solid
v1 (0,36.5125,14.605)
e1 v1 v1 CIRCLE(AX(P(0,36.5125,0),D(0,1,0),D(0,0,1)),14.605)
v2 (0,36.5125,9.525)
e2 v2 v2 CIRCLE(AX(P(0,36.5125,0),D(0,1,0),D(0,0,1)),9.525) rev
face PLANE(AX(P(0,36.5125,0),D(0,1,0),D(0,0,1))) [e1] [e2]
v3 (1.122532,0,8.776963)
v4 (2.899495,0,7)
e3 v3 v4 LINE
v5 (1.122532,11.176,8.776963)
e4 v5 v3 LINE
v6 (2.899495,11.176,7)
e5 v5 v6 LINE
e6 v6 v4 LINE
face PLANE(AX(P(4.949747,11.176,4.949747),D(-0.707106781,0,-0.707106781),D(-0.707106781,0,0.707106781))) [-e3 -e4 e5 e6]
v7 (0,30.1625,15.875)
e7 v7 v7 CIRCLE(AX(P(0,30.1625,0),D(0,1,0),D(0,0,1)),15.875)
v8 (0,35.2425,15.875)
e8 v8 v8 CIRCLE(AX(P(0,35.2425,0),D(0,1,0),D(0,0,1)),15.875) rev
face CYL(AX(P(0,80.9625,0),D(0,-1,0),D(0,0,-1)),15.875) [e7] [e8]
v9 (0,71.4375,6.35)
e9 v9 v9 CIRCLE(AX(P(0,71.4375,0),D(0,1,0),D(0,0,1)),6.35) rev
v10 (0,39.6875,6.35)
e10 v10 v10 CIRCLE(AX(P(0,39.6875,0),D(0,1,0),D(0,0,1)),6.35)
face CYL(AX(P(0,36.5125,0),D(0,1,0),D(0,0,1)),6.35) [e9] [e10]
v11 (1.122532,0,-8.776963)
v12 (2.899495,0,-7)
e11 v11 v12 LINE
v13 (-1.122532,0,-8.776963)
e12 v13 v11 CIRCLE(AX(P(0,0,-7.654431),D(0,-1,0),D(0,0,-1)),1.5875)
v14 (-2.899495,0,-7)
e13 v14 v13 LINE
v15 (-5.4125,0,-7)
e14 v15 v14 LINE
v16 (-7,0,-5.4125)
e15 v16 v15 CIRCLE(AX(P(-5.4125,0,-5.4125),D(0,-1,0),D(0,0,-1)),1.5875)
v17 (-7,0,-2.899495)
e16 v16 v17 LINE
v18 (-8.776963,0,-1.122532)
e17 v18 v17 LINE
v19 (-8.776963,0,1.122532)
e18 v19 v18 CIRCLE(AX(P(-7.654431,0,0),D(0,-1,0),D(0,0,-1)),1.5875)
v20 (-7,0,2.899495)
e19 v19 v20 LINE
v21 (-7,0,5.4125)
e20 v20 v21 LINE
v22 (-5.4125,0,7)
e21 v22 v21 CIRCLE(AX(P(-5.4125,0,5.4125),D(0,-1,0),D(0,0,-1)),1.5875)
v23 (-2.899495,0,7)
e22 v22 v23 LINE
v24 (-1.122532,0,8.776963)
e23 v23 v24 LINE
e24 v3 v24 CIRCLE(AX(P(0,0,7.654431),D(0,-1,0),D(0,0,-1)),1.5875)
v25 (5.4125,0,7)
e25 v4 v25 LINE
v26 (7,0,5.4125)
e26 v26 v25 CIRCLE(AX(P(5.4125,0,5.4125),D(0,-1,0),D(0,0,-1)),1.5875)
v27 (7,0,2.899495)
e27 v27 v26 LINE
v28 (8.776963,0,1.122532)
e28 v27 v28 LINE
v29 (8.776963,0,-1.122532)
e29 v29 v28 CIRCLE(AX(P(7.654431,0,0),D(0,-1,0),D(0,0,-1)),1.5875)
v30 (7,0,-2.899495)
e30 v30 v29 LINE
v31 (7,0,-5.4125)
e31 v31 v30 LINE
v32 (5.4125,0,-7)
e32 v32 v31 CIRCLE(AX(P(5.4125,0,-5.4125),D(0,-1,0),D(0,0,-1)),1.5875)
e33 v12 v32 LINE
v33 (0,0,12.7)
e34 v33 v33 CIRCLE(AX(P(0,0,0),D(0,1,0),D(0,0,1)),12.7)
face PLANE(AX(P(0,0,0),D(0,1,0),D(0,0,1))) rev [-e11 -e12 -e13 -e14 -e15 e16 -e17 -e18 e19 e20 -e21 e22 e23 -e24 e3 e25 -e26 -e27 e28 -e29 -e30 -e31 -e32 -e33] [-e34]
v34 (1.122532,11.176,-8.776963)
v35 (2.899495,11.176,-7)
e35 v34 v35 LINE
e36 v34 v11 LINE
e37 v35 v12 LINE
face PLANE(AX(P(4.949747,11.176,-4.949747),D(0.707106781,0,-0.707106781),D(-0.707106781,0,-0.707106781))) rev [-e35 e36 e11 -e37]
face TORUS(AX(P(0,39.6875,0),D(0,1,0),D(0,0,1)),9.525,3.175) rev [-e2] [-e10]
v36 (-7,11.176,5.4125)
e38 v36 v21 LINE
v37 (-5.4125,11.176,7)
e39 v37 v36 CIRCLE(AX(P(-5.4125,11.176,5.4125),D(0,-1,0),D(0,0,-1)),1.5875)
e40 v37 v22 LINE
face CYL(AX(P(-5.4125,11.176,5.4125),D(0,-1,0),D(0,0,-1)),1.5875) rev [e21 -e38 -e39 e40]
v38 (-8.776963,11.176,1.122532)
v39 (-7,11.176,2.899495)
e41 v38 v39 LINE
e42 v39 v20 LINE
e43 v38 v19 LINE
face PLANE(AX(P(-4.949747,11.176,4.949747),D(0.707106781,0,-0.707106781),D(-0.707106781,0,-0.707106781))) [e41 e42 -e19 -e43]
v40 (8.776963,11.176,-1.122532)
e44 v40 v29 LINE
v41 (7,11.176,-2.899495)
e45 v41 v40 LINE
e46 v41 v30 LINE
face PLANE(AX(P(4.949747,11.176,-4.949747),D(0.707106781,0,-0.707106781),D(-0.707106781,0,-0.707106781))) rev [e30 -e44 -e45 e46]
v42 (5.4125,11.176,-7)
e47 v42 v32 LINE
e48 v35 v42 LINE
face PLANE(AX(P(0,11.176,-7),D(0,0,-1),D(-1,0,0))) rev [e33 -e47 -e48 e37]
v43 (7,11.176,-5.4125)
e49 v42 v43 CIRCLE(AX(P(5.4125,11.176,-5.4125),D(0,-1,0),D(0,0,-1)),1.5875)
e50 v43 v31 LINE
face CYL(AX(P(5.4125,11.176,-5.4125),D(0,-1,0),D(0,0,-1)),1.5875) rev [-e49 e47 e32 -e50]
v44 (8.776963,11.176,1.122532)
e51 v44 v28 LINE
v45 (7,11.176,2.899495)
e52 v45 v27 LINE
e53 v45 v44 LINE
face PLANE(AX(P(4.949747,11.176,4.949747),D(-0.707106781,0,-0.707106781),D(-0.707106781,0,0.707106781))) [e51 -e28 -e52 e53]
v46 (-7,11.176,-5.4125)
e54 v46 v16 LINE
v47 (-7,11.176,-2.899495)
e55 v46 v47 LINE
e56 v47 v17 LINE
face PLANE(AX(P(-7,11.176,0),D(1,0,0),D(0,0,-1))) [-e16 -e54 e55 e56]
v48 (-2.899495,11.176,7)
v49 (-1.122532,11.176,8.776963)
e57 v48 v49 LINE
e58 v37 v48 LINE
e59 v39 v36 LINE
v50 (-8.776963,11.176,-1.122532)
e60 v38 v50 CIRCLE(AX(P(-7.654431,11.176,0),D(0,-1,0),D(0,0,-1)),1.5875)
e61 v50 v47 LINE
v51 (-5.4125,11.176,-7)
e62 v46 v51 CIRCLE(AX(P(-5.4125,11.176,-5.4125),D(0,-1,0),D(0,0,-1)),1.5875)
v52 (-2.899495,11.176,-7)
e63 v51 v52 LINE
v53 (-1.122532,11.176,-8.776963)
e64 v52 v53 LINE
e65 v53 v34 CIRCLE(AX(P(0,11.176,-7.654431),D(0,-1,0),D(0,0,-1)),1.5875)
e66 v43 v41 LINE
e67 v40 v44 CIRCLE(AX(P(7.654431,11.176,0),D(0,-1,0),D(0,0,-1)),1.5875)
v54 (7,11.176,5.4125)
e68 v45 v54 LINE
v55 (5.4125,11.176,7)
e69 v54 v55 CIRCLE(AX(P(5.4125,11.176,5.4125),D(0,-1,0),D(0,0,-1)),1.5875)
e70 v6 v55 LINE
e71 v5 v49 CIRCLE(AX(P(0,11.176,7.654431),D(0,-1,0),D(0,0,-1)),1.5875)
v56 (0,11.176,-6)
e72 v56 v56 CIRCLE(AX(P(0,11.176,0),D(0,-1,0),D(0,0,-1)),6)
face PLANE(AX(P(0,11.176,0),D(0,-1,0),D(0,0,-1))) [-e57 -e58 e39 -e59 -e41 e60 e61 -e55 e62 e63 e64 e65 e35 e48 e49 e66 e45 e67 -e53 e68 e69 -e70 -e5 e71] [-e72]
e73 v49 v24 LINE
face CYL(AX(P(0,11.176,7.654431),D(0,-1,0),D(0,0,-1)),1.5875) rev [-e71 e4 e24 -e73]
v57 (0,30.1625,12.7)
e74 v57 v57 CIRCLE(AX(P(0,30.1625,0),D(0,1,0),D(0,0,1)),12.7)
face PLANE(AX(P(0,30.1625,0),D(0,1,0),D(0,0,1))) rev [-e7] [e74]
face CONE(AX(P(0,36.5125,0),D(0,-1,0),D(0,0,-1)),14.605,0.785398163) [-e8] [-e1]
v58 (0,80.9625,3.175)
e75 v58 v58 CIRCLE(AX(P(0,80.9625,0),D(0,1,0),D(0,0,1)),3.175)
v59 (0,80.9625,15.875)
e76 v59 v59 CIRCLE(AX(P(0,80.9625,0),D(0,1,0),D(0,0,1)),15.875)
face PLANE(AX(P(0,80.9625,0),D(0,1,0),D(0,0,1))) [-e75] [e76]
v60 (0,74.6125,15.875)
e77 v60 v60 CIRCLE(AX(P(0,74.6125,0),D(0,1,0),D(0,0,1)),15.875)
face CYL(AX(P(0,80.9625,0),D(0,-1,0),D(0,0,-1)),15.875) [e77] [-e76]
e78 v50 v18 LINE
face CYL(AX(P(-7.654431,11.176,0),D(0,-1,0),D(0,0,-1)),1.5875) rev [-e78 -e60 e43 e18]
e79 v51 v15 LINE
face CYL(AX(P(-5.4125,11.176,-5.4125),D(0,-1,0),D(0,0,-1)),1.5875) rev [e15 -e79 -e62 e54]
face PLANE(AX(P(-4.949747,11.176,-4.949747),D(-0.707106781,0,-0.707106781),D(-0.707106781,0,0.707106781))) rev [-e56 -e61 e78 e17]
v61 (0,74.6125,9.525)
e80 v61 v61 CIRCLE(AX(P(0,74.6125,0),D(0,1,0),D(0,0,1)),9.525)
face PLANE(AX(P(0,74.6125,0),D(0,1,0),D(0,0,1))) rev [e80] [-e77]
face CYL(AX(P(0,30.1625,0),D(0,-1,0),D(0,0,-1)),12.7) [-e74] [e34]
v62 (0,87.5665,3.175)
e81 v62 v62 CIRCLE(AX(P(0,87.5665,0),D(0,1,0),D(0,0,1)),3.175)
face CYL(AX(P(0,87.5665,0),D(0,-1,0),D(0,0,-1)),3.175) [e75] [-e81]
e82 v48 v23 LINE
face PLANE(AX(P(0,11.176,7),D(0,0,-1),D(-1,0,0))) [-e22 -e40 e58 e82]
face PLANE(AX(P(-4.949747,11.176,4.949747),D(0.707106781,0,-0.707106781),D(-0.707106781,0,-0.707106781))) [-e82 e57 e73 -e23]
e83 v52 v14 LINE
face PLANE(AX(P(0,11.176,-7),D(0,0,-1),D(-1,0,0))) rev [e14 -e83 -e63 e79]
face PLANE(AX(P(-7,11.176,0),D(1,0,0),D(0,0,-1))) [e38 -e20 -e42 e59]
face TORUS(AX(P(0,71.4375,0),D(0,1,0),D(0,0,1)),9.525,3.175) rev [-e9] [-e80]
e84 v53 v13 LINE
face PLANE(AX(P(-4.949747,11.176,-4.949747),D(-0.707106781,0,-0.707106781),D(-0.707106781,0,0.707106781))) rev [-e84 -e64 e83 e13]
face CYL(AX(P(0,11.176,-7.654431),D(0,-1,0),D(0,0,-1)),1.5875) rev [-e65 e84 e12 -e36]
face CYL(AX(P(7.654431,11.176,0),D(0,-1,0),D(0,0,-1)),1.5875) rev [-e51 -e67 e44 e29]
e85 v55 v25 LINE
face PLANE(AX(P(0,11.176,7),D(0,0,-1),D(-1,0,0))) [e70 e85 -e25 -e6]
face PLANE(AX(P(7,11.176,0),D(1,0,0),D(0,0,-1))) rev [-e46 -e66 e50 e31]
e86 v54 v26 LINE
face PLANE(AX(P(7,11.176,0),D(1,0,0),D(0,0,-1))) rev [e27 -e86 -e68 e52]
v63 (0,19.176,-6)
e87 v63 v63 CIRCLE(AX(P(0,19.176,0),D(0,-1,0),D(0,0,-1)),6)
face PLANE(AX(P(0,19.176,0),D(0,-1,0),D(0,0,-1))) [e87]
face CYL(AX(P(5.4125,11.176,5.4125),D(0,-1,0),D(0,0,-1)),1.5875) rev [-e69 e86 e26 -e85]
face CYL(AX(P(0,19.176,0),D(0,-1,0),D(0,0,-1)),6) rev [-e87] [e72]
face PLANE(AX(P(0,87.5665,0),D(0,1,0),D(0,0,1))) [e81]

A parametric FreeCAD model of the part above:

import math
import FreeCAD as App
import Part
import Sketcher
from FreeCAD import Vector
Q = App.Units.Quantity


def edges_at(feature, points):
    """Names of the edges that pass closest to the given points."""
    edges = feature.Shape.Edges
    near = lambda p: min(range(len(edges)), key=lambda i: edges[i].distToShape(Part.Vertex(*p))[0])
    return sorted({f"Edge{near(p) + 1}" for p in points})

doc = App.newDocument("Part")
params = doc.addObject("Spreadsheet::Sheet", "Params")
for row, (alias, value) in enumerate([
    ("sketch1_diameter", "1 in"),
    ("pad1_length", "1.1875 in"),
    ("sketch2_diameter", "1.25 in"),
    ("pad2_length", "2 in"),
    ("sketch3_radius", "0.0625 in"),
    ("pocket1_length", "0.44 in"),
    ("pocket2_length", "8 mm"),
    ("sketch5_diameter", "0.25 in"),
    ("pad3_length", "0.26 in"),
    ("sketch6_diameter", "0.5 in"),
    ("sketch6_diameter2", "1.25 in"),
    ("pocket3_length", "1.5 in"),
    ("fillet_radius", "0.125 in"),
    ("chamfer_size", "0.05 in"),
], start=1):
    params.set(f"A{row}", alias)
    params.set(f"B{row}", "=" + value)
    params.setAlias(f"B{row}", alias)

body = doc.addObject("PartDesign::Body", "Body")

# Sketch on XZ plane
sketch1 = body.newObject("Sketcher::SketchObject", "Sketch")
sketch1.AttachmentSupport = (doc.getObject("XZ_Plane"), [""])
sketch1.MapMode = "FlatFace"
sketch1.addGeometry(Part.Circle(Vector(0, 0, 0), Vector(0, 0, 1), 13), False)
sketch1.addConstraint([
    Sketcher.Constraint("Coincident", 0, 3, -1, 1),
    Sketcher.Constraint("Diameter", 0, Q("1 in")),
])
sketch1.setExpression("Constraints[1]", "Params.sketch1_diameter")
pad1 = body.newObject("PartDesign::Pad", "Pad")
pad1.Profile = sketch1
pad1.setExpression("Length", "Params.pad1_length")
pad1.Reversed = True

# Sketch on XZ plane
sketch2 = body.newObject("Sketcher::SketchObject", "Sketch001")
sketch2.AttachmentSupport = (doc.getObject("XZ_Plane"), [""])
sketch2.MapMode = "FlatFace"
sketch2.AttachmentOffset = App.Placement(Vector(0, 0, -1.1875 * 25.4), App.Rotation())
sketch2.addGeometry(Part.Circle(Vector(0, 0, 0), Vector(0, 0, 1), 16), False)
sketch2.addConstraint([
    Sketcher.Constraint("Coincident", 0, 3, -1, 1),
    Sketcher.Constraint("Diameter", 0, Q("1.25 in")),
])
sketch2.setExpression("Constraints[1]", "Params.sketch2_diameter")
pad2 = body.newObject("PartDesign::Pad", "Pad001")
pad2.Profile = sketch2
pad2.setExpression("Length", "Params.pad2_length")
pad2.Reversed = True

# Sketch on XZ plane
sketch3 = body.newObject("Sketcher::SketchObject", "Sketch002")
sketch3.AttachmentSupport = (doc.getObject("XZ_Plane"), [""])
sketch3.MapMode = "FlatFace"
sketch3.addGeometry([
    Part.LineSegment(Vector(-7, 2.9, 0), Vector(-8.8, 1.1, 0)),  # 0
    Part.ArcOfCircle(Part.Circle(Vector(-7.7, 0, 0), Vector(0, 0, 1), 1.6), math.radians(135), math.radians(225)),  # 1
    Part.LineSegment(Vector(-8.8, -1.1, 0), Vector(-7, -2.9, 0)),  # 2
    Part.LineSegment(Vector(-7, -2.9, 0), Vector(-7, -5.4, 0)),  # 3
    Part.ArcOfCircle(Part.Circle(Vector(-5.4, -5.4, 0), Vector(0, 0, 1), 1.6), math.radians(180), math.radians(270)),  # 4
    Part.LineSegment(Vector(-5.4, -7, 0), Vector(-2.9, -7, 0)),  # 5
    Part.LineSegment(Vector(-2.9, -7, 0), Vector(-1.1, -8.8, 0)),  # 6
    Part.ArcOfCircle(Part.Circle(Vector(0, -7.7, 0), Vector(0, 0, 1), 1.6), math.radians(-135), math.radians(-45)),  # 7
    Part.LineSegment(Vector(1.1, -8.8, 0), Vector(2.9, -7, 0)),  # 8
    Part.LineSegment(Vector(2.9, -7, 0), Vector(5.4, -7, 0)),  # 9
    Part.ArcOfCircle(Part.Circle(Vector(5.4, -5.4, 0), Vector(0, 0, 1), 1.6), math.radians(-90), math.radians(0)),  # 10
    Part.LineSegment(Vector(7, -5.4, 0), Vector(7, -2.9, 0)),  # 11
    Part.LineSegment(Vector(7, -2.9, 0), Vector(8.8, -1.1, 0)),  # 12
    Part.ArcOfCircle(Part.Circle(Vector(7.7, 0, 0), Vector(0, 0, 1), 1.6), math.radians(-45), math.radians(45)),  # 13
    Part.LineSegment(Vector(8.8, 1.1, 0), Vector(7, 2.9, 0)),  # 14
    Part.LineSegment(Vector(7, 2.9, 0), Vector(7, 5.4, 0)),  # 15
    Part.ArcOfCircle(Part.Circle(Vector(5.4, 5.4, 0), Vector(0, 0, 1), 1.6), math.radians(0), math.radians(90)),  # 16
    Part.LineSegment(Vector(5.4, 7, 0), Vector(2.9, 7, 0)),  # 17
    Part.LineSegment(Vector(2.9, 7, 0), Vector(1.1, 8.8, 0)),  # 18
    Part.ArcOfCircle(Part.Circle(Vector(0, 7.7, 0), Vector(0, 0, 1), 1.6), math.radians(45), math.radians(135)),  # 19
    Part.LineSegment(Vector(-1.1, 8.8, 0), Vector(-2.9, 7, 0)),  # 20
    Part.LineSegment(Vector(-2.9, 7, 0), Vector(-5.4, 7, 0)),  # 21
    Part.ArcOfCircle(Part.Circle(Vector(-5.4, 5.4, 0), Vector(0, 0, 1), 1.6), math.radians(90), math.radians(180)),  # 22
    Part.LineSegment(Vector(-7, 5.4, 0), Vector(-7, 2.9, 0)),  # 23
], False)
sketch3.addConstraint([
    Sketcher.Constraint("Tangent", 0, 2, 1, 1),
    Sketcher.Constraint("Tangent", 1, 2, 2, 1),
    Sketcher.Constraint("Coincident", 2, 2, 3, 1),
    Sketcher.Constraint("Tangent", 3, 2, 4, 1),
    Sketcher.Constraint("Tangent", 4, 2, 5, 1),
    Sketcher.Constraint("Coincident", 5, 2, 6, 1),
    Sketcher.Constraint("Tangent", 6, 2, 7, 1),
    Sketcher.Constraint("Tangent", 7, 2, 8, 1),
    Sketcher.Constraint("Coincident", 8, 2, 9, 1),
    Sketcher.Constraint("Tangent", 9, 2, 10, 1),
    Sketcher.Constraint("Tangent", 10, 2, 11, 1),
    Sketcher.Constraint("Coincident", 11, 2, 12, 1),
    Sketcher.Constraint("Tangent", 12, 2, 13, 1),
    Sketcher.Constraint("Tangent", 13, 2, 14, 1),
    Sketcher.Constraint("Coincident", 14, 2, 15, 1),
    Sketcher.Constraint("Tangent", 15, 2, 16, 1),
    Sketcher.Constraint("Tangent", 16, 2, 17, 1),
    Sketcher.Constraint("Coincident", 17, 2, 18, 1),
    Sketcher.Constraint("Tangent", 18, 2, 19, 1),
    Sketcher.Constraint("Tangent", 19, 2, 20, 1),
    Sketcher.Constraint("Coincident", 20, 2, 21, 1),
    Sketcher.Constraint("Tangent", 21, 2, 22, 1),
    Sketcher.Constraint("Tangent", 22, 2, 23, 1),
    Sketcher.Constraint("Coincident", 23, 2, 0, 1),
    Sketcher.Constraint("Vertical", 3),
    Sketcher.Constraint("Horizontal", 5),
    Sketcher.Constraint("Horizontal", 9),
    Sketcher.Constraint("Vertical", 11),
    Sketcher.Constraint("Vertical", 15),
    Sketcher.Constraint("Horizontal", 17),
    Sketcher.Constraint("Horizontal", 21),
    Sketcher.Constraint("Vertical", 23),
    Sketcher.Constraint("Equal", 1, 4),
    Sketcher.Constraint("Equal", 4, 7),
    Sketcher.Constraint("Equal", 7, 10),
    Sketcher.Constraint("Equal", 10, 13),
    Sketcher.Constraint("Equal", 13, 16),
    Sketcher.Constraint("Equal", 16, 19),
    Sketcher.Constraint("Equal", 19, 22),
    Sketcher.Constraint("Symmetric", 1, 3, 13, 3, -1, 1),
    Sketcher.Constraint("Symmetric", 4, 3, 16, 3, -1, 1),
    Sketcher.Constraint("Symmetric", 7, 3, 19, 3, -1, 1),
    Sketcher.Constraint("Symmetric", 10, 3, 22, 3, -1, 1),
    Sketcher.Constraint("Symmetric", 4, 3, 10, 3, -2),
    Sketcher.Constraint("Symmetric", 6, 2, 7, 2, -2),
    Sketcher.Constraint("Symmetric", 1, 2, 12, 2, -2),
    Sketcher.Constraint("Perpendicular", 0, 2),
    Sketcher.Constraint("Parallel", 2, 6),
    Sketcher.Constraint("Perpendicular", 6, 8),
    Sketcher.Constraint("Perpendicular", 12, 14),
    Sketcher.Constraint("Parallel", 14, 18),
    Sketcher.Constraint("Perpendicular", 18, 20),
    Sketcher.Constraint("Equal", 21, 3),
    Sketcher.Constraint("Equal", 2, 6),
    Sketcher.Constraint("Radius", 1, Q("0.0625 in")),
    Sketcher.Constraint("DistanceX", 4, 3, -1, 1, 5.4125),
    Sketcher.Constraint("DistanceY", 0, 2, 19, 3, 6.531899),
])
sketch3.setExpression("Constraints[54]", "Params.sketch3_radius")
pocket1 = body.newObject("PartDesign::Pocket", "Pocket")
pocket1.Profile = sketch3
pocket1.setExpression("Length", "Params.pocket1_length")

# Sketch on XZ plane
sketch4 = body.newObject("Sketcher::SketchObject", "Sketch003")
sketch4.AttachmentSupport = (doc.getObject("XZ_Plane"), [""])
sketch4.MapMode = "FlatFace"
sketch4.AttachmentOffset = App.Placement(Vector(0, 0, -0.44 * 25.4), App.Rotation())
sketch4.addGeometry(Part.Circle(Vector(0, 0, 0), Vector(0, 0, 1), 6), False)
sketch4.addConstraint([
    Sketcher.Constraint("Coincident", 0, 3, -1, 1),
    Sketcher.Constraint("Diameter", 0, 12.0),
])
pocket2 = body.newObject("PartDesign::Pocket", "Pocket001")
pocket2.Profile = sketch4
pocket2.setExpression("Length", "Params.pocket2_length")

# Sketch on XZ plane
sketch5 = body.newObject("Sketcher::SketchObject", "Sketch004")
sketch5.AttachmentSupport = (doc.getObject("XZ_Plane"), [""])
sketch5.MapMode = "FlatFace"
sketch5.AttachmentOffset = App.Placement(Vector(0, 0, -3.1875 * 25.4), App.Rotation())
sketch5.addGeometry(Part.Circle(Vector(0, 0, 0), Vector(0, 0, 1), 3.2), False)
sketch5.addConstraint([
    Sketcher.Constraint("Coincident", 0, 3, -1, 1),
    Sketcher.Constraint("Diameter", 0, Q("0.25 in")),
])
sketch5.setExpression("Constraints[1]", "Params.sketch5_diameter")
pad3 = body.newObject("PartDesign::Pad", "Pad002")
pad3.Profile = sketch5
pad3.setExpression("Length", "Params.pad3_length")
pad3.Reversed = True

# Sketch on XZ plane
sketch6 = body.newObject("Sketcher::SketchObject", "Sketch005")
sketch6.AttachmentSupport = (doc.getObject("XZ_Plane"), [""])
sketch6.MapMode = "FlatFace"
sketch6.AttachmentOffset = App.Placement(Vector(0, 0, -2.9375 * 25.4), App.Rotation())
sketch6.addGeometry([
    Part.Circle(Vector(0, 0, 0), Vector(0, 0, 1), 16),
    Part.Circle(Vector(0, 0, 0), Vector(0, 0, 1), 6),
], False)
sketch6.addConstraint([
    Sketcher.Constraint("Coincident", 0, 3, -1, 1),
    Sketcher.Constraint("Coincident", 1, 3, -1, 1),
    Sketcher.Constraint("Diameter", 1, Q("0.5 in")),
    Sketcher.Constraint("Diameter", 0, Q("1.25 in")),
])
sketch6.setExpression("Constraints[2]", "Params.sketch6_diameter")
sketch6.setExpression("Constraints[3]", "Params.sketch6_diameter2")
pocket3 = body.newObject("PartDesign::Pocket", "Pocket002")
pocket3.Profile = sketch6
pocket3.setExpression("Length", "Params.pocket3_length")
pocket3.Reversed = True
doc.recompute()

fillet = body.newObject("PartDesign::Fillet", "Fillet")
fillet.Base = (pocket3, edges_at(pocket3, [(-6.35, 36.513, 0), (-6.35, 74.612, 0)]))
fillet.setExpression("Radius", "Params.fillet_radius")
doc.recompute()

chamfer = body.newObject("PartDesign::Chamfer", "Chamfer")
chamfer.Base = (fillet, edges_at(fillet, [(-15.875, 36.513, 0)]))
chamfer.setExpression("Size", "Params.chamfer_size")

doc.recompute()
